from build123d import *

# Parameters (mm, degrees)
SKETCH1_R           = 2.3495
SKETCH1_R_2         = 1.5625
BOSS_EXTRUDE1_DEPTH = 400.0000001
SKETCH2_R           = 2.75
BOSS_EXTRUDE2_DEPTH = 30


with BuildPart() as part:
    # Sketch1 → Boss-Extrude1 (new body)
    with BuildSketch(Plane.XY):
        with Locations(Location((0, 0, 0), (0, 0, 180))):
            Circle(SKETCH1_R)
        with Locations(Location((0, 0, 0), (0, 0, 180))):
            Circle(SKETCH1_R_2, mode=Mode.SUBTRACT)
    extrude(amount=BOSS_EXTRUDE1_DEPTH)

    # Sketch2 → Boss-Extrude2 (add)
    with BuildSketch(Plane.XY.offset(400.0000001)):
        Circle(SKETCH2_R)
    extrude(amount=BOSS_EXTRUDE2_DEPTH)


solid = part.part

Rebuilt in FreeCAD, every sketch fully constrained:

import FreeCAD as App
import Part
import Sketcher
from FreeCAD import Vector
Q = App.Units.Quantity

doc = App.newDocument("Part")
body = doc.addObject("PartDesign::Body", "Body")

# Sketch on XY plane
sketch1 = body.newObject("Sketcher::SketchObject", "Sketch")
sketch1.AttachmentSupport = (doc.getObject("XY_Plane"), [""])
sketch1.MapMode = "FlatFace"
sketch1.addGeometry([
    Part.Circle(Vector(0, 0, 0), Vector(0, 0, 1), 2.3),
    Part.Circle(Vector(0, 0, 0), Vector(0, 0, 1), 1.6),
], False)
sketch1.addConstraint([
    Sketcher.Constraint("Coincident", 0, 3, -1, 1),
    Sketcher.Constraint("Coincident", 1, 3, -1, 1),
    Sketcher.Constraint("Diameter", 0, Q("4.699 mm")),
    Sketcher.Constraint("Diameter", 1, Q("3.125 mm")),
])
pad1 = body.newObject("PartDesign::Pad", "Pad")
pad1.Profile = sketch1
pad1.Length = 400

# Sketch on XY plane
sketch2 = body.newObject("Sketcher::SketchObject", "Sketch001")
sketch2.AttachmentSupport = (doc.getObject("XY_Plane"), [""])
sketch2.MapMode = "FlatFace"
sketch2.AttachmentOffset = App.Placement(Vector(0, 0, 400), App.Rotation())
sketch2.addGeometry(Part.Circle(Vector(0, 0, 0), Vector(0, 0, 1), 2.8), False)
sketch2.addConstraint([
    Sketcher.Constraint("Coincident", 0, 3, -1, 1),
    Sketcher.Constraint("Diameter", 0, Q("5.5 mm")),
])
pad2 = body.newObject("PartDesign::Pad", "Pad001")
pad2.Profile = sketch2
pad2.Length = 30

doc.recompute()
